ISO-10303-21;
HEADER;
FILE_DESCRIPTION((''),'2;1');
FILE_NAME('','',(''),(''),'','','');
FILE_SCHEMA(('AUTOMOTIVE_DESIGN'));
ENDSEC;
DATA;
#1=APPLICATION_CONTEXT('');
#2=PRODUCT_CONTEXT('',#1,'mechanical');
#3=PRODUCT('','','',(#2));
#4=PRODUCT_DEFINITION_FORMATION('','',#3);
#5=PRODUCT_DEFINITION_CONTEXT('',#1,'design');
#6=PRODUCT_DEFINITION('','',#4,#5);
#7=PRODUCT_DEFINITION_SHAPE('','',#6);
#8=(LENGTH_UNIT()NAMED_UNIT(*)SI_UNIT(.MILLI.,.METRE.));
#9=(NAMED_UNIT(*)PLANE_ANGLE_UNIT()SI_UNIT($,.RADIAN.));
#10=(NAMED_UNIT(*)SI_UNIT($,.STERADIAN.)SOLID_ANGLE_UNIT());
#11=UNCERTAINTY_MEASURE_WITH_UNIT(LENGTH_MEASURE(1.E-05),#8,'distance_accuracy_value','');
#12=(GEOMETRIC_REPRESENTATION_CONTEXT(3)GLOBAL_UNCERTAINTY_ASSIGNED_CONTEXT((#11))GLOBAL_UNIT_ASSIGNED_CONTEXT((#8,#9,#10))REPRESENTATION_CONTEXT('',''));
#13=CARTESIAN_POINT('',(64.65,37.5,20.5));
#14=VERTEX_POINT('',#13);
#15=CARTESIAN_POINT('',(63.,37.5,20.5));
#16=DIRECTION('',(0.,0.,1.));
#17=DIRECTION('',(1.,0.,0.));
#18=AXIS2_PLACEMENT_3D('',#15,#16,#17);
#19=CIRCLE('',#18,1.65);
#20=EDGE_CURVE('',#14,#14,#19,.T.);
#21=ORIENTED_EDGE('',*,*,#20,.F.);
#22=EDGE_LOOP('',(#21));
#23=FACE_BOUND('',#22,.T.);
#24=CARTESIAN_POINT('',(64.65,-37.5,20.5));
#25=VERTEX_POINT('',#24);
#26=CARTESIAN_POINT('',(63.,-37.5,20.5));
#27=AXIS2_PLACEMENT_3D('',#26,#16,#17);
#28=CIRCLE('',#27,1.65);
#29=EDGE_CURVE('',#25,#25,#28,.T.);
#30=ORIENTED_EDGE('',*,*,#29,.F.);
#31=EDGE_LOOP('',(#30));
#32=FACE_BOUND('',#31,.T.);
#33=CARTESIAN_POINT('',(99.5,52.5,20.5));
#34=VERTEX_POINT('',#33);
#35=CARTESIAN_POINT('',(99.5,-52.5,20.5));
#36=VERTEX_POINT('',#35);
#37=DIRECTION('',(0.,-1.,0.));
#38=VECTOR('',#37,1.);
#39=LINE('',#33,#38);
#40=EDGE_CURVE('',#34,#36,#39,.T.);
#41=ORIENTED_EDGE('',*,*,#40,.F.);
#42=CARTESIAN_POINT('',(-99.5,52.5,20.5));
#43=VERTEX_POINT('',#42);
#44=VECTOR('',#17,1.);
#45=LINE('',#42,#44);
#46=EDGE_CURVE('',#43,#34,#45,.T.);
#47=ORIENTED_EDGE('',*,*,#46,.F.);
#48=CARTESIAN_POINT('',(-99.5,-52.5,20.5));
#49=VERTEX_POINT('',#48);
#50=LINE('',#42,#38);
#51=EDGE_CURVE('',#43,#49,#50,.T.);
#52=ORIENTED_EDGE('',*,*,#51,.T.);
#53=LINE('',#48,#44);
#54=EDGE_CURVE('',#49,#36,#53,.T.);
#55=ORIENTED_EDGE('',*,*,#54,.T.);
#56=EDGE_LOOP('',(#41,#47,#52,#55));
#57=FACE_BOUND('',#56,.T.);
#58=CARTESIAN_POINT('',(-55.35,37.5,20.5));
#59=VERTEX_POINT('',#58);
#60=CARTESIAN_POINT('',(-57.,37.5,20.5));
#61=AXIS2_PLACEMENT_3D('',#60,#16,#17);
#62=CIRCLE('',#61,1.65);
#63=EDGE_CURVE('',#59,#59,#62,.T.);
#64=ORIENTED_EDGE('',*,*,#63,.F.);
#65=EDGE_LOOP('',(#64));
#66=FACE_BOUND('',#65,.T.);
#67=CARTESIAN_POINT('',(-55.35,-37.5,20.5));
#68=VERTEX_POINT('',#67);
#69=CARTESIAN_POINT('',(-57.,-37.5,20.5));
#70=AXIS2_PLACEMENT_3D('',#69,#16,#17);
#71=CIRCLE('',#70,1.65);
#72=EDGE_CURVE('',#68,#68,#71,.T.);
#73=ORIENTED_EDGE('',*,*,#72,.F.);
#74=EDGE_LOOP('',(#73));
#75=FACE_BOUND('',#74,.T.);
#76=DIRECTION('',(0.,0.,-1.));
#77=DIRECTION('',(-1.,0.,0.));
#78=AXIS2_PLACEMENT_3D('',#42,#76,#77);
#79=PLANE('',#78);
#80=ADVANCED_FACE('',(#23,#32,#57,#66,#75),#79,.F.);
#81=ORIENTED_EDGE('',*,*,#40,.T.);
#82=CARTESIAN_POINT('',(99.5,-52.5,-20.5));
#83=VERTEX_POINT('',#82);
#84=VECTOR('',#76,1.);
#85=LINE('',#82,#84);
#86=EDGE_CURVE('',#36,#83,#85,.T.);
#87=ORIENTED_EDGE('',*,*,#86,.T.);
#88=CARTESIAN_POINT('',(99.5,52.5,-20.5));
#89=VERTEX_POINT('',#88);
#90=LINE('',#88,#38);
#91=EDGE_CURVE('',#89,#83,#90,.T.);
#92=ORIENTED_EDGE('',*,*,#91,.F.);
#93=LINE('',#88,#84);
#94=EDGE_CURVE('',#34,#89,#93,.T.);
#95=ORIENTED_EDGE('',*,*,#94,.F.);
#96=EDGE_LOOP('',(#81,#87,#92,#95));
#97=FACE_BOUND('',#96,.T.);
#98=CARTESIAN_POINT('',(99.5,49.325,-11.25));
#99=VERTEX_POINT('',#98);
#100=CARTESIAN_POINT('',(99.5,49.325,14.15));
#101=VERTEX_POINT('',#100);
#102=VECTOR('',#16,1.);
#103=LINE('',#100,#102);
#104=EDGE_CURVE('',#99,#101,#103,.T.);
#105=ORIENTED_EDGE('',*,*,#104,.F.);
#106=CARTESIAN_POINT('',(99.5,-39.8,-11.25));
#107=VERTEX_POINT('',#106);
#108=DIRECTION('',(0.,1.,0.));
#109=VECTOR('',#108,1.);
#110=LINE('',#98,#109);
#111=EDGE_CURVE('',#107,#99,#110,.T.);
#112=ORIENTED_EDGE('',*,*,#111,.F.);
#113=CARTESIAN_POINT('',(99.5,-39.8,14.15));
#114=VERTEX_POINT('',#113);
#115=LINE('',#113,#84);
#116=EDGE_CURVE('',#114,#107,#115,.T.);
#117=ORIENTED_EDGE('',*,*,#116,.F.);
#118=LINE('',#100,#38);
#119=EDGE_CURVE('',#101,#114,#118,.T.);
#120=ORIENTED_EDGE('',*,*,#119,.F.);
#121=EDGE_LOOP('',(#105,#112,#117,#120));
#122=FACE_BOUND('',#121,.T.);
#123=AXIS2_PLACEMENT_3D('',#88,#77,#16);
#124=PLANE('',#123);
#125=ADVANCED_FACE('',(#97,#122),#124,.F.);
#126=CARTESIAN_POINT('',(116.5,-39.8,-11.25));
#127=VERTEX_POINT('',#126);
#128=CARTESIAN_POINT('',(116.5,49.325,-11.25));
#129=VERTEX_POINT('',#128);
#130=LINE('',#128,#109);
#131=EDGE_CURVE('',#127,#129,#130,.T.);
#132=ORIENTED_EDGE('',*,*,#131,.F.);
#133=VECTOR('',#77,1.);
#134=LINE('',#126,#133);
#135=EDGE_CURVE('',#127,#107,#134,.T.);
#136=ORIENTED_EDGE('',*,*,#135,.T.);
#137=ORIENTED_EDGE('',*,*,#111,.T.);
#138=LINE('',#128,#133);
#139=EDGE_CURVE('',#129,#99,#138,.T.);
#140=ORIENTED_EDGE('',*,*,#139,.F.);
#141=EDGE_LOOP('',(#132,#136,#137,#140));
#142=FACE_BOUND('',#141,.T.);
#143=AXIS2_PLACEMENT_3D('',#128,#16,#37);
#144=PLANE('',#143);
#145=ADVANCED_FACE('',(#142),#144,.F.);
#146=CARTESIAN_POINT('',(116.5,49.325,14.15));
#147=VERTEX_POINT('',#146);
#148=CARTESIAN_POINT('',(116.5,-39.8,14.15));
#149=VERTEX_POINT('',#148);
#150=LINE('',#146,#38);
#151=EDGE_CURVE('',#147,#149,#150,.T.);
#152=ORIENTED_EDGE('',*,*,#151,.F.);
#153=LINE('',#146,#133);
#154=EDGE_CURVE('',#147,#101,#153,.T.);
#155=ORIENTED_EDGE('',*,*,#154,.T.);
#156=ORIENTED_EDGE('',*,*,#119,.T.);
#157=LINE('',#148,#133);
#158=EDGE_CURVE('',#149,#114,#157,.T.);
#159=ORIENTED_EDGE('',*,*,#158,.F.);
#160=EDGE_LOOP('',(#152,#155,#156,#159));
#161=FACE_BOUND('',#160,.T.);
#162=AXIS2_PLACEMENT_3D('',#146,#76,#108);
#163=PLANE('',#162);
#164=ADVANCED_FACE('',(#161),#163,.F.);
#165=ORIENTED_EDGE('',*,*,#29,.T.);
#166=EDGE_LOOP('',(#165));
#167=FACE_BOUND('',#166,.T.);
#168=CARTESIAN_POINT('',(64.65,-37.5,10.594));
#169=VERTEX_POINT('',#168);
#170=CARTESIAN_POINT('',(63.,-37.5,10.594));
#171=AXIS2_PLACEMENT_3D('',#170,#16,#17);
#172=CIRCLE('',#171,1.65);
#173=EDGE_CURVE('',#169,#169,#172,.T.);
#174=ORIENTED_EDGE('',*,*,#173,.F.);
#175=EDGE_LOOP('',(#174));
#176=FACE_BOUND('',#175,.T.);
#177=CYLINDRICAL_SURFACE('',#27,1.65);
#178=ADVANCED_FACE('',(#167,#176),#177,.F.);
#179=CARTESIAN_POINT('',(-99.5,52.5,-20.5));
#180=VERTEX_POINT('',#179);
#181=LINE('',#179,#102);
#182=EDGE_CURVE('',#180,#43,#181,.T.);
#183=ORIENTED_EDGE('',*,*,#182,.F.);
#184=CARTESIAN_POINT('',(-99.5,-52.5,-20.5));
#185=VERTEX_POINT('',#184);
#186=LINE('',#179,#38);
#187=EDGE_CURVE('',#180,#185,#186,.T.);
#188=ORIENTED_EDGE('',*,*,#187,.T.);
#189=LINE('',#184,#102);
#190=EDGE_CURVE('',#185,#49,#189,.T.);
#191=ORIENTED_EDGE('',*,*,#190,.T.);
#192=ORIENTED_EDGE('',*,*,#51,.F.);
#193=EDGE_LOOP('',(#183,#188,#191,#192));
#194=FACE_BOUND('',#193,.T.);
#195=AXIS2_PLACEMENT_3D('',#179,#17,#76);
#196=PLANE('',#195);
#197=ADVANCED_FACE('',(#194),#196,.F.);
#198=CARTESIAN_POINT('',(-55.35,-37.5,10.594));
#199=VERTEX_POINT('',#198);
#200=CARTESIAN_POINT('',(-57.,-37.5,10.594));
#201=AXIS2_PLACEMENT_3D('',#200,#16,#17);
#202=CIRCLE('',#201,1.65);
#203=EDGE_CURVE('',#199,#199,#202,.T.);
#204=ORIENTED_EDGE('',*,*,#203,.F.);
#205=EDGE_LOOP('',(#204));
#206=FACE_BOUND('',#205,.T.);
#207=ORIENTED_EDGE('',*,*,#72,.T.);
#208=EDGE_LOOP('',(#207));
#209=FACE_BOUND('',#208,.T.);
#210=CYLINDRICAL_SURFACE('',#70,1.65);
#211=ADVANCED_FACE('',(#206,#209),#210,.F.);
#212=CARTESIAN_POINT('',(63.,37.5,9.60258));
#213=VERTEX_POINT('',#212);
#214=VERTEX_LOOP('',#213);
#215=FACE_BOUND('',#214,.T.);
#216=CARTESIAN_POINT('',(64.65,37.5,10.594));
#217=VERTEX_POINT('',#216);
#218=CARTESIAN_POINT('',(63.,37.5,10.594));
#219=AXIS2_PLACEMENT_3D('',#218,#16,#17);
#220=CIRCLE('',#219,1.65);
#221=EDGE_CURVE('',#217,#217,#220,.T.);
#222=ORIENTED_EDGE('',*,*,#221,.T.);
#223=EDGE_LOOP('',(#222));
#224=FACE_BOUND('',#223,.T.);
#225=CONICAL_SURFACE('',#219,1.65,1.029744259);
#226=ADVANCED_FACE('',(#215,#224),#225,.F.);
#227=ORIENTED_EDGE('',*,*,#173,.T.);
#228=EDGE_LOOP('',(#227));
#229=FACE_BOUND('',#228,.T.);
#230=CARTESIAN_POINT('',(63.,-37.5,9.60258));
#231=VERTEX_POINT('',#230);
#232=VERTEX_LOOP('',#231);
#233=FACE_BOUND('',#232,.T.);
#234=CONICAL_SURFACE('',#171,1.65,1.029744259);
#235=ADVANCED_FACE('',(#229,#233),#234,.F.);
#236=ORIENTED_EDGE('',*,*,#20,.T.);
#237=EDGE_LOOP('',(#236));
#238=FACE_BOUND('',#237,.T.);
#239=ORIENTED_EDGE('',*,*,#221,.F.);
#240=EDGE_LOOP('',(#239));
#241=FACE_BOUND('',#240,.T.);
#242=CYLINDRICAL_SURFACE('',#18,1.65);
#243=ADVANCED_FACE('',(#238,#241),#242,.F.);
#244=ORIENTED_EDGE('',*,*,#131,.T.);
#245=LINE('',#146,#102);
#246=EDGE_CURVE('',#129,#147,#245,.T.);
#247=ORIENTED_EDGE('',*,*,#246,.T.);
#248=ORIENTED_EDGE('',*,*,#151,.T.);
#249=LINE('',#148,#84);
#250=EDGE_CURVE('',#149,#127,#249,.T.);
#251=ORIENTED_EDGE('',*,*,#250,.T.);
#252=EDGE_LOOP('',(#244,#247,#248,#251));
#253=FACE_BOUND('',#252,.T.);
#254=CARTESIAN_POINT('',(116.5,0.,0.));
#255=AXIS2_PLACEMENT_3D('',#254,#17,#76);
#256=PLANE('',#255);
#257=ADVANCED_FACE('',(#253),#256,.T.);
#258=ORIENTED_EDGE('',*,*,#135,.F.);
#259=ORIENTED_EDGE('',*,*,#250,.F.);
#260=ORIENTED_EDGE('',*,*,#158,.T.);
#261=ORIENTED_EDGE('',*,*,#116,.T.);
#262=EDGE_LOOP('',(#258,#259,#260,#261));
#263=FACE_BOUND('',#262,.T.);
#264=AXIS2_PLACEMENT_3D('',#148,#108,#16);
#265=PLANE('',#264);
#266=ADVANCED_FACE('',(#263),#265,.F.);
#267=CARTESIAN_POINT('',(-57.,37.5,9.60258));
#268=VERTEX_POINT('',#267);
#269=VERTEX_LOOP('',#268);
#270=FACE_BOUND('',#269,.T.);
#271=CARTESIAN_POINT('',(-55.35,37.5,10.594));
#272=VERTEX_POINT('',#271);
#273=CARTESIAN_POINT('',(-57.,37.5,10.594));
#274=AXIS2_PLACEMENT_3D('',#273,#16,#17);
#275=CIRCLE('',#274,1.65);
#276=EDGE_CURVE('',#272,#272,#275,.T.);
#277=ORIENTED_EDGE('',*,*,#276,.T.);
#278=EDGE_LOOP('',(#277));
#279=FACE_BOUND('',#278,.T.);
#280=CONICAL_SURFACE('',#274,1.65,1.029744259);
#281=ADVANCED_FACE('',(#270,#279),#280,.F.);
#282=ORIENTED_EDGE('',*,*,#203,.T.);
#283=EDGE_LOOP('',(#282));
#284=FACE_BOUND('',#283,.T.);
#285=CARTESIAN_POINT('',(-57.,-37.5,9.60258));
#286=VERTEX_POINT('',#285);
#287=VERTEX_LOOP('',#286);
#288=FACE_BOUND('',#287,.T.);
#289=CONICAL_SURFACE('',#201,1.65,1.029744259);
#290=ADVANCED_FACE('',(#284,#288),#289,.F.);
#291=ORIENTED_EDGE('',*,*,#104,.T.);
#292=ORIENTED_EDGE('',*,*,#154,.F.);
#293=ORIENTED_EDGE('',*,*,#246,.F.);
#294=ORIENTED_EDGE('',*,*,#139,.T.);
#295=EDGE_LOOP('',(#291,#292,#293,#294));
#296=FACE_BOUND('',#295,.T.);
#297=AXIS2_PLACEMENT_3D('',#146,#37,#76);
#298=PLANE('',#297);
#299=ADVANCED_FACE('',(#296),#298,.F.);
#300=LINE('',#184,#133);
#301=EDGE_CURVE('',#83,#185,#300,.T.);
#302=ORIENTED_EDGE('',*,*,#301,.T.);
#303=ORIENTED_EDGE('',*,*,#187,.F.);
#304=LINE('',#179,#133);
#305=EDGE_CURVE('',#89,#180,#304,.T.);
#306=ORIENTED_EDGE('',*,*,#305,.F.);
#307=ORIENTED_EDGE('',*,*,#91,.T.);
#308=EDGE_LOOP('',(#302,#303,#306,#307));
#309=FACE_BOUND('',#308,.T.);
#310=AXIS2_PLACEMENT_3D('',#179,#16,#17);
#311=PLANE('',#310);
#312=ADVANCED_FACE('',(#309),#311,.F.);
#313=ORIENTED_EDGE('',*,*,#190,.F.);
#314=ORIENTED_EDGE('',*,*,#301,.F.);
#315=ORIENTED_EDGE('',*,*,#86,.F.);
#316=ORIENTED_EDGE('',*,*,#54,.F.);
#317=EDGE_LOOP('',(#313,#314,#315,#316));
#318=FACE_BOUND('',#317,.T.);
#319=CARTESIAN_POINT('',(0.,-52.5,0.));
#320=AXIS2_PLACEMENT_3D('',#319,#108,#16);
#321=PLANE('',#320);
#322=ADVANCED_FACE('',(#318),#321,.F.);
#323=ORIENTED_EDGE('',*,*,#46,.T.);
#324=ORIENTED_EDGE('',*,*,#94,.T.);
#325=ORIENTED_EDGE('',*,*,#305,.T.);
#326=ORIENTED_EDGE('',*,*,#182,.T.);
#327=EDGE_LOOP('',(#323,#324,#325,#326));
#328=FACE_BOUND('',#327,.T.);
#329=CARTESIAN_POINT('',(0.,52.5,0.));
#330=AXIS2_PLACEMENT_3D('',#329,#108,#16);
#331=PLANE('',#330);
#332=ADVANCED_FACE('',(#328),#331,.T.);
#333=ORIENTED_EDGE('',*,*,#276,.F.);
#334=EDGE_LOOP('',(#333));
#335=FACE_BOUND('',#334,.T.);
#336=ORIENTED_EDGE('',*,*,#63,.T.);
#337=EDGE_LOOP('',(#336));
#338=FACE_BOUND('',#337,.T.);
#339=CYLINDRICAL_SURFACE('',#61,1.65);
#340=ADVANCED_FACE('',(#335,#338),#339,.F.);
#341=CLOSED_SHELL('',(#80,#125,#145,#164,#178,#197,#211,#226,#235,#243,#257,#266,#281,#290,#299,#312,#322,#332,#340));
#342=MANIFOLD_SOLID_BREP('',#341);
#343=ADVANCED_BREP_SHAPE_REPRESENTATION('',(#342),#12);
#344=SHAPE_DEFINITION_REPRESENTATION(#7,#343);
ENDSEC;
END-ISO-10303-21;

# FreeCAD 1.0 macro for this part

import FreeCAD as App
import Part
import Sketcher

V = App.Vector

doc = App.newDocument("Part")
body = doc.addObject("PartDesign::Body", "Body")

# Sketch on XZ plane
sketch1 = body.newObject("Sketcher::SketchObject", "Sketch")
sketch1.AttachmentSupport = (doc.getObject("XZ_Plane"), [""])
sketch1.MapMode = "FlatFace"
sketch1.addGeometry(Part.LineSegment(V(-99.5, -20.5, 0), V(-99.5, 20.5, 0)), False)
sketch1.addGeometry(Part.LineSegment(V(-99.5, 20.5, 0), V(99.5, 20.5, 0)), False)
sketch1.addGeometry(Part.LineSegment(V(99.5, 20.5, 0), V(99.5, -20.5, 0)), False)
sketch1.addGeometry(Part.LineSegment(V(99.5, -20.5, 0), V(-99.5, -20.5, 0)), False)
sketch1.addConstraint(Sketcher.Constraint("Coincident", 0, 2, 1, 1))
sketch1.addConstraint(Sketcher.Constraint("Coincident", 1, 2, 2, 1))
sketch1.addConstraint(Sketcher.Constraint("Coincident", 2, 2, 3, 1))
sketch1.addConstraint(Sketcher.Constraint("Coincident", 3, 2, 0, 1))
sketch1.addConstraint(Sketcher.Constraint("Vertical", 0))
sketch1.addConstraint(Sketcher.Constraint("Horizontal", 1))
sketch1.addConstraint(Sketcher.Constraint("Vertical", 2))
sketch1.addConstraint(Sketcher.Constraint("Horizontal", 3))
sketch1.addConstraint(Sketcher.Constraint("Symmetric", 0, 2, 2, 2, -1, 1))
sketch1.addConstraint(Sketcher.Constraint("DistanceX", 1, 1, 1, 2, 199.0))
sketch1.addConstraint(Sketcher.Constraint("DistanceY", 0, 1, 0, 2, 41.0))
pad1 = body.newObject("PartDesign::Pad", "Pad")
pad1.Profile = sketch1
pad1.Length = 105
pad1.Midplane = True

# Sketch on YZ plane
sketch2 = body.newObject("Sketcher::SketchObject", "Sketch001")
sketch2.AttachmentSupport = (doc.getObject("YZ_Plane"), [""])
sketch2.MapMode = "FlatFace"
sketch2.AttachmentOffset = App.Placement(V(0, 0, 99.5), App.Rotation())
sketch2.addGeometry(Part.LineSegment(V(49.325, 14.15, 0), V(-39.8, 14.15, 0)), False)
sketch2.addGeometry(Part.LineSegment(V(-39.8, 14.15, 0), V(-39.8, -11.25, 0)), False)
sketch2.addGeometry(Part.LineSegment(V(-39.8, -11.25, 0), V(49.325, -11.25, 0)), False)
sketch2.addGeometry(Part.LineSegment(V(49.325, -11.25, 0), V(49.325, 14.15, 0)), False)
sketch2.addConstraint(Sketcher.Constraint("Coincident", 0, 2, 1, 1))
sketch2.addConstraint(Sketcher.Constraint("Coincident", 1, 2, 2, 1))
sketch2.addConstraint(Sketcher.Constraint("Coincident", 2, 2, 3, 1))
sketch2.addConstraint(Sketcher.Constraint("Coincident", 3, 2, 0, 1))
sketch2.addConstraint(Sketcher.Constraint("Horizontal", 0))
sketch2.addConstraint(Sketcher.Constraint("Vertical", 1))
sketch2.addConstraint(Sketcher.Constraint("Horizontal", 2))
sketch2.addConstraint(Sketcher.Constraint("Vertical", 3))
sketch2.addConstraint(Sketcher.Constraint("DistanceY", 1, 2, 1, 1, 25.4))
sketch2.addConstraint(Sketcher.Constraint("DistanceX", 0, 2, -1, 1, 39.8))
sketch2.addConstraint(Sketcher.Constraint("DistanceX", 0, 2, 0, 1, 89.125))
sketch2.addConstraint(Sketcher.Constraint("DistanceY", -1, 1, 0, 2, 14.15))
pad2 = body.newObject("PartDesign::Pad", "Pad001")
pad2.Profile = sketch2
pad2.Length = 17

# Sketch on XY plane
sketch3 = body.newObject("Sketcher::SketchObject", "Sketch002")
sketch3.AttachmentSupport = (doc.getObject("XY_Plane"), [""])
sketch3.MapMode = "FlatFace"
sketch3.AttachmentOffset = App.Placement(V(0, 0, 20.5), App.Rotation())
sketch3.addGeometry(Part.Circle(V(-57, 37.5, 0), V(0, 0, 1), 1.65), False)
sketch3.addGeometry(Part.Circle(V(63, -37.5, 0), V(0, 0, 1), 1.65), False)
sketch3.addGeometry(Part.Circle(V(-57, -37.5, 0), V(0, 0, 1), 1.65), False)
sketch3.addGeometry(Part.Circle(V(63, 37.5, 0), V(0, 0, 1), 1.65), False)
sketch3.addConstraint(Sketcher.Constraint("Equal", 0, 1))
sketch3.addConstraint(Sketcher.Constraint("Equal", 1, 2))
sketch3.addConstraint(Sketcher.Constraint("Equal", 2, 3))
sketch3.addConstraint(Sketcher.Constraint("Symmetric", 0, 3, 2, 3, -1))
sketch3.addConstraint(Sketcher.Constraint("Symmetric", 1, 3, 3, 3, -1))
sketch3.addConstraint(Sketcher.Constraint("Horizontal", 1, 3, 2, 3))
sketch3.addConstraint(Sketcher.Constraint("Diameter", 0, 3.3))
sketch3.addConstraint(Sketcher.Constraint("DistanceX", 0, 3, -1, 1, 57.0))
sketch3.addConstraint(Sketcher.Constraint("DistanceX", -1, 1, 1, 3, 63.0))
sketch3.addConstraint(Sketcher.Constraint("DistanceY", 1, 3, 0, 3, 75.0))
doc.recompute()
hole = body.newObject("PartDesign::Hole", "Hole")
hole.Profile = sketch3
hole.ThreadType = "None"
hole.Diameter = 3.3
hole.DepthType = "Dimension"
hole.Depth = 9.906
hole.DrillPoint = "Angled"
hole.DrillPointAngle = 118

doc.recompute()
